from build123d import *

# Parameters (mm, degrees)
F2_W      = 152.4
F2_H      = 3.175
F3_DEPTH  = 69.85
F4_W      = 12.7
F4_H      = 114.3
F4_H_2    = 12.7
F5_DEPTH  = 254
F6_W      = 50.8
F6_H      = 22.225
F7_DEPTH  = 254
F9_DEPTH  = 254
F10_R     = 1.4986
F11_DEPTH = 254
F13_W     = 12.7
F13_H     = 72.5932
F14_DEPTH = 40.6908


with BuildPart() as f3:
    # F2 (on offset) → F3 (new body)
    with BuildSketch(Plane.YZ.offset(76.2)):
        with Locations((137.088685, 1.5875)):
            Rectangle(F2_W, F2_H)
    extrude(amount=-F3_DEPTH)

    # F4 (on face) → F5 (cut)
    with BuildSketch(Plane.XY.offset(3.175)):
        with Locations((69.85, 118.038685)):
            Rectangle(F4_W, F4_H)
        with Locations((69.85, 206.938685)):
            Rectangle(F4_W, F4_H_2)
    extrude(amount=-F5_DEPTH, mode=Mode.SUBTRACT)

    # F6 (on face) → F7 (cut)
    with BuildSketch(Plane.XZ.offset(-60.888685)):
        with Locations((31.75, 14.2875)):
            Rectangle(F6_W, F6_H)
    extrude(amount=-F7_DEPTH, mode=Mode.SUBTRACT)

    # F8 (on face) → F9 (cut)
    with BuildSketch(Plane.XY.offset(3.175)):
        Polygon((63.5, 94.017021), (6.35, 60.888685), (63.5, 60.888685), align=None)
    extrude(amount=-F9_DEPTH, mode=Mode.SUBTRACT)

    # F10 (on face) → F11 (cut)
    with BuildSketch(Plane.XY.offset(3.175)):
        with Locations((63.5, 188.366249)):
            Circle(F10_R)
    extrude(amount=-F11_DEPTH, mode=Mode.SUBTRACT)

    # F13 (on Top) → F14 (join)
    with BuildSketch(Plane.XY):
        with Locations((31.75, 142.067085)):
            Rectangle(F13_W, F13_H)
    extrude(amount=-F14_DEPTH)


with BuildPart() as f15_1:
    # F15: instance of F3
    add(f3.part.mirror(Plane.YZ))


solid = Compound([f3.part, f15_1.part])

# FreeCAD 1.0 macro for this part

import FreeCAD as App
import Part
import Sketcher
from FreeCAD import Vector
Q = App.Units.Quantity


def add_polygon(sketch, points):
    """Adds a closed chain of lines whose ends are joined by coincident constraints."""
    first, n = sketch.GeometryCount, len(points)
    for a, b in zip(points, points[1:] + points[:1]):
        sketch.addGeometry(Part.LineSegment(App.Vector(*a, 0), App.Vector(*b, 0)), False)
    for i in range(n):
        sketch.addConstraint(Sketcher.Constraint("Coincident", first + i, 2, first + (i + 1) % n, 1))

doc = App.newDocument("Part")
params = doc.addObject("Spreadsheet::Sheet", "Params")
for row, (alias, value) in enumerate([
    ("sketch1_width", "6 in"),
    ("sketch1_height", "0.125 in"),
    ("pad1_length", "2.75 in"),
    ("sketch2_width", "0.5 in"),
    ("sketch2_height", "4.5 in"),
    ("pocket1_length", "10 in"),
    ("sketch3_width", "2 in"),
    ("sketch3_height", "0.875 in"),
    ("pocket2_length", "10 in"),
    ("sketch4_width", "2.25 in"),
    ("pocket3_length", "10 in"),
    ("sketch5_diameter", "0.118 in"),
    ("pocket4_length", "10 in"),
    ("sketch6_width", "0.5 in"),
    ("sketch6_height", "2.858 in"),
    ("pad2_length", "1.602 in"),
], start=1):
    params.set(f"A{row}", alias)
    params.set(f"B{row}", "=" + value)
    params.setAlias(f"B{row}", alias)

body = doc.addObject("PartDesign::Body", "Body")

# Sketch on YZ plane
sketch1 = body.newObject("Sketcher::SketchObject", "Sketch")
sketch1.AttachmentSupport = (doc.getObject("YZ_Plane"), [""])
sketch1.MapMode = "FlatFace"
sketch1.AttachmentOffset = App.Placement(Vector(0, 0, 3 * 25.4), App.Rotation())
add_polygon(sketch1, [(60.9, 3.2), (60.9, 0), (213.3, 0), (213.3, 3.2)])  # lines 0-3
sketch1.addConstraint([
    Sketcher.Constraint("Vertical", 0),
    Sketcher.Constraint("Horizontal", 1),
    Sketcher.Constraint("Vertical", 2),
    Sketcher.Constraint("Horizontal", 3),
    Sketcher.Constraint("PointOnObject", 0, 2, -1),
    Sketcher.Constraint("DistanceX", 1, 1, 1, 2, Q("6 in")),
    Sketcher.Constraint("DistanceY", 0, 2, 0, 1, Q("0.125 in")),
    Sketcher.Constraint("DistanceX", -1, 1, 0, 2, 60.888685),
])
sketch1.setExpression("Constraints[9]", "Params.sketch1_width")
sketch1.setExpression("Constraints[10]", "Params.sketch1_height")
pad1 = body.newObject("PartDesign::Pad", "Pad")
pad1.Profile = sketch1
pad1.setExpression("Length", "Params.pad1_length")
pad1.Reversed = True

# Sketch on XY plane
sketch2 = body.newObject("Sketcher::SketchObject", "Sketch001")
sketch2.AttachmentSupport = (doc.getObject("XY_Plane"), [""])
sketch2.MapMode = "FlatFace"
sketch2.AttachmentOffset = App.Placement(Vector(0, 0, 0.125 * 25.4), App.Rotation())
add_polygon(sketch2, [(64, 175), (64, 61), (76, 61), (76, 175)])  # lines 0-3
add_polygon(sketch2, [(64, 213), (64, 201), (76, 201), (76, 213)])  # lines 4-7
sketch2.addConstraint([
    Sketcher.Constraint("Vertical", 0),
    Sketcher.Constraint("Horizontal", 1),
    Sketcher.Constraint("Vertical", 2),
    Sketcher.Constraint("Horizontal", 3),
    Sketcher.Constraint("Vertical", 4),
    Sketcher.Constraint("Horizontal", 5),
    Sketcher.Constraint("Vertical", 6),
    Sketcher.Constraint("Horizontal", 7),
    Sketcher.Constraint("Vertical", 3, 2, 4, 2),
    Sketcher.Constraint("Vertical", 2, 2, 5, 2),
    Sketcher.Constraint("Equal", 7, 4),
    Sketcher.Constraint("DistanceX", 1, 1, 1, 2, Q("0.5 in")),
    Sketcher.Constraint("DistanceY", 0, 2, 0, 1, Q("4.5 in")),
    Sketcher.Constraint("DistanceX", -1, 1, 1, 2, Q("3 in")),
    Sketcher.Constraint("DistanceY", 3, 2, 4, 2, Q("1 in")),
    Sketcher.Constraint("DistanceY", -1, 1, 0, 2, 60.888685),
])
sketch2.setExpression("Constraints[19]", "Params.sketch2_width")
sketch2.setExpression("Constraints[20]", "Params.sketch2_height")
pocket1 = body.newObject("PartDesign::Pocket", "Pocket")
pocket1.Profile = sketch2
pocket1.setExpression("Length", "Params.pocket1_length")

# Sketch on XZ plane
sketch3 = body.newObject("Sketcher::SketchObject", "Sketch002")
sketch3.AttachmentSupport = (doc.getObject("XZ_Plane"), [""])
sketch3.MapMode = "FlatFace"
sketch3.AttachmentOffset = App.Placement(Vector(0, 0, -60.888685), App.Rotation())
add_polygon(sketch3, [(6, 25), (6, 3), (57, 3), (57, 25)])  # lines 0-3
sketch3.addConstraint([
    Sketcher.Constraint("Vertical", 0),
    Sketcher.Constraint("Horizontal", 1),
    Sketcher.Constraint("Vertical", 2),
    Sketcher.Constraint("Horizontal", 3),
    Sketcher.Constraint("DistanceX", 1, 1, 1, 2, Q("2 in")),
    Sketcher.Constraint("DistanceY", -1, 1, 2, 2, Q("1 in")),
    Sketcher.Constraint("DistanceY", 0, 2, 0, 1, Q("0.875 in")),
    Sketcher.Constraint("DistanceX", -1, 1, 0, 2, Q("0.25 in")),
])
sketch3.setExpression("Constraints[8]", "Params.sketch3_width")
sketch3.setExpression("Constraints[10]", "Params.sketch3_height")
pocket2 = body.newObject("PartDesign::Pocket", "Pocket001")
pocket2.Profile = sketch3
pocket2.setExpression("Length", "Params.pocket2_length")

# Sketch on XY plane
sketch4 = body.newObject("Sketcher::SketchObject", "Sketch003")
sketch4.AttachmentSupport = (doc.getObject("XY_Plane"), [""])
sketch4.MapMode = "FlatFace"
sketch4.AttachmentOffset = App.Placement(Vector(0, 0, 0.125 * 25.4), App.Rotation())
add_polygon(sketch4, [(64, 94), (6, 61), (64, 61)])  # lines 0-2
sketch4.addConstraint([
    Sketcher.Constraint("Horizontal", 1),
    Sketcher.Constraint("Vertical", 2),
    Sketcher.Constraint("DistanceX", 1, 1, 1, 2, Q("2.25 in")),
    Sketcher.Constraint("DistanceX", -1, 1, 1, 2, Q("2.5 in")),
    Sketcher.Constraint("Distance", 0, 66.05762),
    Sketcher.Constraint("DistanceY", -1, 1, 2, 2, 94.017021),
])
sketch4.setExpression("Constraints[5]", "Params.sketch4_width")
pocket3 = body.newObject("PartDesign::Pocket", "Pocket002")
pocket3.Profile = sketch4
pocket3.setExpression("Length", "Params.pocket3_length")

# Sketch on XY plane
sketch5 = body.newObject("Sketcher::SketchObject", "Sketch004")
sketch5.AttachmentSupport = (doc.getObject("XY_Plane"), [""])
sketch5.MapMode = "FlatFace"
sketch5.AttachmentOffset = App.Placement(Vector(0, 0, 0.125 * 25.4), App.Rotation())
sketch5.addGeometry(Part.Circle(Vector(63.5, 188.4, 0), Vector(0, 0, 1), 1.5), False)
sketch5.addConstraint([
    Sketcher.Constraint("Diameter", 0, Q("0.118 in")),
    Sketcher.Constraint("DistanceX", -1, 1, 0, 3, Q("2.5 in")),
    Sketcher.Constraint("DistanceY", -1, 1, 0, 3, 188.366249),
])
sketch5.setExpression("Constraints[0]", "Params.sketch5_diameter")
pocket4 = body.newObject("PartDesign::Pocket", "Pocket003")
pocket4.Profile = sketch5
pocket4.setExpression("Length", "Params.pocket4_length")

# Sketch on XY plane
sketch6 = body.newObject("Sketcher::SketchObject", "Sketch005")
sketch6.AttachmentSupport = (doc.getObject("XY_Plane"), [""])
sketch6.MapMode = "FlatFace"
add_polygon(sketch6, [(25, 178), (25, 106), (38, 106), (38, 178)])  # lines 0-3
sketch6.addConstraint([
    Sketcher.Constraint("Vertical", 0),
    Sketcher.Constraint("Horizontal", 1),
    Sketcher.Constraint("Vertical", 2),
    Sketcher.Constraint("Horizontal", 3),
    Sketcher.Constraint("DistanceX", 1, 1, 1, 2, Q("0.5 in")),
    Sketcher.Constraint("DistanceX", -1, 1, 0, 2, Q("1 in")),
    Sketcher.Constraint("DistanceY", 0, 2, 0, 1, Q("2.858 in")),
    Sketcher.Constraint("DistanceY", -1, 1, 0, 2, 105.770485),
])
sketch6.setExpression("Constraints[8]", "Params.sketch6_width")
sketch6.setExpression("Constraints[10]", "Params.sketch6_height")
pad2 = body.newObject("PartDesign::Pad", "Pad001")
pad2.Profile = sketch6
pad2.setExpression("Length", "Params.pad2_length")
pad2.Reversed = True
body2 = doc.addObject("PartDesign::Body", "Body001")
doc.recompute()

mirroring = doc.addObject("Part::Mirroring", "Mirroring")
mirroring.Source = body
mirroring.Base = Vector(0, 0, 0)
mirroring.Normal = Vector(1, 0, 0)
body2.BaseFeature = mirroring
doc.recompute()
mirroring.Visibility = False

doc.recompute()
